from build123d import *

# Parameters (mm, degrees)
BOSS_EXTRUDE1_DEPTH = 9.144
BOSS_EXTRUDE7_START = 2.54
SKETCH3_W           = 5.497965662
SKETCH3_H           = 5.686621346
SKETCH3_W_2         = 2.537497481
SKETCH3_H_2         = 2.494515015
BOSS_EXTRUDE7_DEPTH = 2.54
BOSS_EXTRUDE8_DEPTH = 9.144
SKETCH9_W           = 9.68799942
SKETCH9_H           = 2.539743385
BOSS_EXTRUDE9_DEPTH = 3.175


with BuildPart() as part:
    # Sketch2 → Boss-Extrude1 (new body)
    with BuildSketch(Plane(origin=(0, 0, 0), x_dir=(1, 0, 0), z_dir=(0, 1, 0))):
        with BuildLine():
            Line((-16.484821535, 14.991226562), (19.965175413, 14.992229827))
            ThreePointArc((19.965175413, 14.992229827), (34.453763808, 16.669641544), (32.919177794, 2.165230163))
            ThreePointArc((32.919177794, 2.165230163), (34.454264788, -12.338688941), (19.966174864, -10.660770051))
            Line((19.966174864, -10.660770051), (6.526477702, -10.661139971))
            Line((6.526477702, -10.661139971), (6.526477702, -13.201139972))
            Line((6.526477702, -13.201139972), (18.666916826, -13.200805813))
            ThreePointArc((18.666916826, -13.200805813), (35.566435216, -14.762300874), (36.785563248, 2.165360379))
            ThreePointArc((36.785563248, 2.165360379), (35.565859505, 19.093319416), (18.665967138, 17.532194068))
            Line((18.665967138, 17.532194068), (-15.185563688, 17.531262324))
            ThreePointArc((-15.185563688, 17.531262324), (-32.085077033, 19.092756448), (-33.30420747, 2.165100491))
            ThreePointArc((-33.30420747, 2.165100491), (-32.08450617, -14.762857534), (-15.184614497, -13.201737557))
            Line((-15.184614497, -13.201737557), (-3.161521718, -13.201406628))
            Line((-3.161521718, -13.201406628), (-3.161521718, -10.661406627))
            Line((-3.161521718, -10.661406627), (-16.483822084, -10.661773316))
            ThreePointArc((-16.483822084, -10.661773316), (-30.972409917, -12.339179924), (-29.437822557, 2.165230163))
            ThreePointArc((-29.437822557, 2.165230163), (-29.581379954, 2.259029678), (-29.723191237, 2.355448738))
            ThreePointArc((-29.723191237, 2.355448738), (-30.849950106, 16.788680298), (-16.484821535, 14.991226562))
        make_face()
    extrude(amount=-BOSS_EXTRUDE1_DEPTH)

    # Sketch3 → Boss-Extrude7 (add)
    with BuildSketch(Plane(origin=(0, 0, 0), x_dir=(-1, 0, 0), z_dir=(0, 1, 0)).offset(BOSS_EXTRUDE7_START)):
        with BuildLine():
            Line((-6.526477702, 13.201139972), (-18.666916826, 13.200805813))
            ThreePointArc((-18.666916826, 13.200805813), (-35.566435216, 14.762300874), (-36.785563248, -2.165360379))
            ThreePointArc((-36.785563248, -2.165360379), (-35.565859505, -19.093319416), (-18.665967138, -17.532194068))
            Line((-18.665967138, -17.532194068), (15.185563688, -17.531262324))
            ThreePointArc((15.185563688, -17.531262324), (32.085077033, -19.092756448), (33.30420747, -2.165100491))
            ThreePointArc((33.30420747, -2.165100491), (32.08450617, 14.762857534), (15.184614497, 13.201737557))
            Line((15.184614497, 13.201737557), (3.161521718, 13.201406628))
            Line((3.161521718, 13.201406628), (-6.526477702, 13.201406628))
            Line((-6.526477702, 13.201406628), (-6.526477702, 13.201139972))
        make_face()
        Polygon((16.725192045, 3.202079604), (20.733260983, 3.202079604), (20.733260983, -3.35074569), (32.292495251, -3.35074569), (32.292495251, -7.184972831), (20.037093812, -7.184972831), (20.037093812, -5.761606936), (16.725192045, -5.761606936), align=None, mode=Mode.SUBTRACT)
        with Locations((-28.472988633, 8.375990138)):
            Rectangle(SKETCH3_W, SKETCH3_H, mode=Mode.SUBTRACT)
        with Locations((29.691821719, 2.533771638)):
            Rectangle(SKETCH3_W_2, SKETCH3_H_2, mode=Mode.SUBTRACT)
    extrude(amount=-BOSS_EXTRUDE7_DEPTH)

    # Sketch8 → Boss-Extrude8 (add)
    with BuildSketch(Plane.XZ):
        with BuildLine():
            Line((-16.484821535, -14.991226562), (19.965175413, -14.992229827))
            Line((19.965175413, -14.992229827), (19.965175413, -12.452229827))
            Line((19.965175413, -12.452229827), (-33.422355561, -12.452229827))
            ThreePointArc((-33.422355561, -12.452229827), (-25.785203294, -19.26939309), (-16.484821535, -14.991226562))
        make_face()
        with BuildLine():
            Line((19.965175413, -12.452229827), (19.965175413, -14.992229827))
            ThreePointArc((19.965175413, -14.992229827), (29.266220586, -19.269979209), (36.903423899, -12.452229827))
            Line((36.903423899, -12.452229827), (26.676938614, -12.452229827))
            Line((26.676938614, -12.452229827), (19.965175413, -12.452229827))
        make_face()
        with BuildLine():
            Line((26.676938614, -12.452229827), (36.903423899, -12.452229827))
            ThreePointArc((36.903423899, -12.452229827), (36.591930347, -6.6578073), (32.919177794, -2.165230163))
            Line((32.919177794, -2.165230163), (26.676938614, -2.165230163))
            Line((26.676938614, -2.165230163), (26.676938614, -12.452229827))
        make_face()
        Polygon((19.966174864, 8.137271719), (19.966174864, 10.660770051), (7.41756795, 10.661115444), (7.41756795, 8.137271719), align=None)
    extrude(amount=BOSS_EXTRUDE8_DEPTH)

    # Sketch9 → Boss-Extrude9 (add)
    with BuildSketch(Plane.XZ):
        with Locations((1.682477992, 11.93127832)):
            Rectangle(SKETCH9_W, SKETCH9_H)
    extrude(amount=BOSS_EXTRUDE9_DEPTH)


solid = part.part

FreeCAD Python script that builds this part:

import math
import FreeCAD as App
import Part
import Sketcher
from FreeCAD import Vector
Q = App.Units.Quantity


def add_polygon(sketch, points):
    """Adds a closed chain of lines whose ends are joined by coincident constraints."""
    first, n = sketch.GeometryCount, len(points)
    for a, b in zip(points, points[1:] + points[:1]):
        sketch.addGeometry(Part.LineSegment(App.Vector(*a, 0), App.Vector(*b, 0)), False)
    for i in range(n):
        sketch.addConstraint(Sketcher.Constraint("Coincident", first + i, 2, first + (i + 1) % n, 1))

doc = App.newDocument("Part")
body = doc.addObject("PartDesign::Body", "Body")

sketch1 = doc.addObject("Sketcher::SketchObject", "Sketch")
body.addObject(sketch1)
sketch1.AttachmentSupport = (doc.XZ_Plane, [""])
sketch1.MapMode = "FlatFace"
sketch1.addGeometry(Part.LineSegment(Vector(-16.48, -14.99, 0), Vector(19.97, -14.99, 0)), False)
sketch1.addGeometry(Part.ArcOfCircle(Part.Circle(Vector(27.88, -10.03, 0), Vector(0, 0, 1), 9.34), math.radians(-148), math.radians(57)), False)
sketch1.addGeometry(Part.ArcOfCircle(Part.Circle(Vector(27.88, 5.7, 0), Vector(0, 0, 1), 9.34), math.radians(-57), math.radians(148)), False)
sketch1.addGeometry(Part.LineSegment(Vector(19.97, 10.66, 0), Vector(6.53, 10.66, 0)), False)
sketch1.addGeometry(Part.LineSegment(Vector(6.53, 10.66, 0), Vector(6.53, 13.2, 0)), False)
sketch1.addGeometry(Part.LineSegment(Vector(6.53, 13.2, 0), Vector(18.67, 13.2, 0)), False)
sketch1.addGeometry(Part.ArcOfCircle(Part.Circle(Vector(27.88, 5.7, 0), Vector(0, 0, 1), 11.88), math.radians(-41), math.radians(141)), False)
sketch1.addGeometry(Part.ArcOfCircle(Part.Circle(Vector(27.88, -10.03, 0), Vector(0, 0, 1), 11.88), math.radians(-141), math.radians(41)), False)
sketch1.addGeometry(Part.LineSegment(Vector(18.67, -17.53, 0), Vector(-15.19, -17.53, 0)), False)
sketch1.addGeometry(Part.ArcOfCircle(Part.Circle(Vector(-24.4, -10.03, 0), Vector(0, 0, 1), 11.88), math.radians(139), math.radians(321)), False)
sketch1.addGeometry(Part.ArcOfCircle(Part.Circle(Vector(-24.4, 5.7, 0), Vector(0, 0, 1), 11.88), math.radians(39), math.radians(221)), False)
sketch1.addGeometry(Part.LineSegment(Vector(-15.18, 13.2, 0), Vector(-3.16, 13.2, 0)), False)
sketch1.addGeometry(Part.LineSegment(Vector(-3.16, 13.2, 0), Vector(-3.16, 10.66, 0)), False)
sketch1.addGeometry(Part.LineSegment(Vector(-3.16, 10.66, 0), Vector(-16.48, 10.66, 0)), False)
sketch1.addGeometry(Part.ArcOfCircle(Part.Circle(Vector(-24.4, 5.7, 0), Vector(0, 0, 1), 9.34), math.radians(32), math.radians(237)), False)
sketch1.addGeometry(Part.ArcOfCircle(Part.Circle(Vector(-24.4, -10.03, 0), Vector(0, 0, 1), 9.34), math.radians(122.63), math.radians(124.74)), False)
sketch1.addGeometry(Part.ArcOfCircle(Part.Circle(Vector(-24.4, -10.03, 0), Vector(0, 0, 1), 9.34), math.radians(125), math.radians(328)), False)
sketch1.addConstraint(Sketcher.Constraint("Coincident", 0, 2, 1, 1))
sketch1.addConstraint(Sketcher.Constraint("Coincident", 1, 2, 2, 1))
sketch1.addConstraint(Sketcher.Constraint("Coincident", 2, 2, 3, 1))
sketch1.addConstraint(Sketcher.Constraint("Coincident", 3, 2, 4, 1))
sketch1.addConstraint(Sketcher.Constraint("Coincident", 4, 2, 5, 1))
sketch1.addConstraint(Sketcher.Constraint("Coincident", 5, 2, 6, 2))
sketch1.addConstraint(Sketcher.Constraint("Coincident", 6, 1, 7, 2))
sketch1.addConstraint(Sketcher.Constraint("Coincident", 7, 1, 8, 1))
sketch1.addConstraint(Sketcher.Constraint("Coincident", 8, 2, 9, 2))
sketch1.addConstraint(Sketcher.Constraint("Coincident", 9, 1, 10, 2))
sketch1.addConstraint(Sketcher.Constraint("Coincident", 10, 1, 11, 1))
sketch1.addConstraint(Sketcher.Constraint("Coincident", 11, 2, 12, 1))
sketch1.addConstraint(Sketcher.Constraint("Coincident", 12, 2, 13, 1))
sketch1.addConstraint(Sketcher.Constraint("Coincident", 13, 2, 14, 1))
sketch1.addConstraint(Sketcher.Constraint("Coincident", 14, 2, 15, 1))
sketch1.addConstraint(Sketcher.Constraint("Tangent", 15, 2, 16, 1))
sketch1.addConstraint(Sketcher.Constraint("Coincident", 16, 2, 0, 1))
sketch1.addConstraint(Sketcher.Constraint("Vertical", 4))
sketch1.addConstraint(Sketcher.Constraint("Vertical", 12))
sketch1.addConstraint(Sketcher.Constraint("Coincident", 6, 3, 2, 3))
sketch1.addConstraint(Sketcher.Constraint("Coincident", 7, 3, 1, 3))
sketch1.addConstraint(Sketcher.Constraint("Coincident", 14, 3, 10, 3))
sketch1.addConstraint(Sketcher.Constraint("Coincident", 15, 3, 9, 3))
sketch1.addConstraint(Sketcher.Constraint("Equal", 7, 10))
sketch1.addConstraint(Sketcher.Constraint("Equal", 1, 14))
sketch1.addConstraint(Sketcher.Constraint("Parallel", 0, 3))
sketch1.addConstraint(Sketcher.Constraint("Parallel", 3, 5))
sketch1.addConstraint(Sketcher.Constraint("Parallel", 5, 8))
sketch1.addConstraint(Sketcher.Constraint("Parallel", 8, 11))
sketch1.addConstraint(Sketcher.Constraint("Parallel", 11, 13))
sketch1.addConstraint(Sketcher.Constraint("Horizontal", 1, 2, 14, 2))
sketch1.addConstraint(Sketcher.Constraint("Equal", 4, 12))
sketch1.addConstraint(Sketcher.Constraint("DistanceY", 4, 1, 4, 2, Q("0.1 in")))
sketch1.addConstraint(Sketcher.Constraint("DistanceX", 0, 2, 1, 2, Q("0.5100001 in")))
sketch1.addConstraint(Sketcher.Constraint("Radius", 9, 11.88103))
sketch1.addConstraint(Sketcher.Constraint("Radius", 16, 9.34103))
sketch1.addConstraint(Sketcher.Constraint("DistanceY", 0, 2, 1, 2, Q("0.505 in")))
sketch1.addConstraint(Sketcher.Constraint("Distance", 13, Q("0.5245 in")))
sketch1.addConstraint(Sketcher.Constraint("Radius", 1, 9.341597))
sketch1.addConstraint(Sketcher.Constraint("Radius", 2, 9.341032))
sketch1.addConstraint(Sketcher.Constraint("Radius", 6, 11.881032))
sketch1.addConstraint(Sketcher.Constraint("Radius", 7, 11.881597))
sketch1.addConstraint(Sketcher.Constraint("Radius", 15, 9.341027))
sketch1.addConstraint(Sketcher.Constraint("DistanceY", 9, 1, -1, 1, 2.1651))
sketch1.addConstraint(Sketcher.Constraint("DistanceX", 1, 3, 2, 3, 0.000901))
sketch1.addConstraint(Sketcher.Constraint("DistanceX", 9, 3, 1, 3, 52.281299))
sketch1.addConstraint(Sketcher.Constraint("DistanceY", 9, 3, 6, 3, 15.7327))
sketch1.addConstraint(Sketcher.Constraint("DistanceX", 9, 3, 10, 3, 0.0009))
sketch1.addConstraint(Sketcher.Constraint("DistanceY", 1, 2, 2, 2, 12.826))
sketch1.addConstraint(Sketcher.Constraint("DistanceX", 3, 2, 2, 3, 21.3553))
sketch1.addConstraint(Sketcher.Constraint("DistanceX", 11, 2, 4, 2, 9.687999))
sketch1.addConstraint(Sketcher.Constraint("DistanceY", 5, 2, 11, 2, 0.000601))
sketch1.addConstraint(Sketcher.Constraint("Distance", 8, 33.851531))
sketch1.addConstraint(Sketcher.Constraint("DistanceX", 9, 3, -1, 1, 24.400422))
sketch1.addConstraint(Sketcher.Constraint("DistanceX", 15, 2, -1, 1, 29.723191))
pad1 = doc.addObject("PartDesign::Pad", "Pad")
body.addObject(pad1)
pad1.Profile = sketch1
pad1.Length = Q("0.36 in")

sketch2 = doc.addObject("Sketcher::SketchObject", "Sketch001")
body.addObject(sketch2)
sketch2.AttachmentSupport = (doc.XZ_Plane, [""])
sketch2.MapMode = "FlatFace"
sketch2.AttachmentOffset = App.Placement(Vector(0, 0, -0.1 * 25.4), App.Rotation())
sketch2.addGeometry(Part.LineSegment(Vector(6.52648, 13.20114, 0), Vector(18.66692, 13.20081, 0)), False)
sketch2.addGeometry(Part.ArcOfCircle(Part.Circle(Vector(27.88178, 5.70112, 0), Vector(0, 0, 1), 11.88103), math.radians(-41), math.radians(141)), False)
sketch2.addGeometry(Part.ArcOfCircle(Part.Circle(Vector(27.88088, -10.03168, 0), Vector(0, 0, 1), 11.8816), math.radians(-141), math.radians(41)), False)
sketch2.addGeometry(Part.LineSegment(Vector(18.66597, -17.53219, 0), Vector(-15.18556, -17.53126, 0)), False)
sketch2.addGeometry(Part.ArcOfCircle(Part.Circle(Vector(-24.40042, -10.03158, 0), Vector(0, 0, 1), 11.88103), math.radians(139), math.radians(321)), False)
sketch2.addGeometry(Part.ArcOfCircle(Part.Circle(Vector(-24.39952, 5.70122, 0), Vector(0, 0, 1), 11.8816), math.radians(39), math.radians(221)), False)
sketch2.addGeometry(Part.LineSegment(Vector(-15.18461, 13.20174, 0), Vector(-3.16152, 13.20141, 0)), False)
sketch2.addGeometry(Part.LineSegment(Vector(-3.16152, 13.20141, 0), Vector(6.52648, 13.20141, 0)), False)
sketch2.addGeometry(Part.LineSegment(Vector(6.52648, 13.20141, 0), Vector(6.52648, 13.20114, 0)), False)
add_polygon(sketch2, [(-16.72519, -5.76161), (-16.72519, 3.20208), (-20.73326, 3.20208), (-20.73326, -3.35075), (-32.2925, -3.35075), (-32.2925, -7.18497), (-20.03709, -7.18497), (-20.03709, -5.76161)])
add_polygon(sketch2, [(25.72401, 5.53268), (31.22197, 5.53268), (31.22197, 11.2193), (25.72401, 11.2193)])
add_polygon(sketch2, [(-30.96057, 1.28651), (-28.42307, 1.28651), (-28.42307, 3.78103), (-30.96057, 3.78103)])
sketch2.addConstraint(Sketcher.Constraint("Coincident", 0, 2, 1, 2))
sketch2.addConstraint(Sketcher.Constraint("Coincident", 1, 1, 2, 2))
sketch2.addConstraint(Sketcher.Constraint("Coincident", 2, 1, 3, 1))
sketch2.addConstraint(Sketcher.Constraint("Coincident", 3, 2, 4, 2))
sketch2.addConstraint(Sketcher.Constraint("Coincident", 4, 1, 5, 2))
sketch2.addConstraint(Sketcher.Constraint("Coincident", 5, 1, 6, 1))
sketch2.addConstraint(Sketcher.Constraint("Coincident", 6, 2, 7, 1))
sketch2.addConstraint(Sketcher.Constraint("Coincident", 7, 2, 8, 1))
sketch2.addConstraint(Sketcher.Constraint("Coincident", 8, 2, 0, 1))
sketch2.addConstraint(Sketcher.Constraint("Horizontal", 7))
sketch2.addConstraint(Sketcher.Constraint("Vertical", 8))
sketch2.addConstraint(Sketcher.Constraint("Vertical", 9))
sketch2.addConstraint(Sketcher.Constraint("Horizontal", 10))
sketch2.addConstraint(Sketcher.Constraint("Vertical", 11))
sketch2.addConstraint(Sketcher.Constraint("Horizontal", 12))
sketch2.addConstraint(Sketcher.Constraint("Vertical", 13))
sketch2.addConstraint(Sketcher.Constraint("Horizontal", 14))
sketch2.addConstraint(Sketcher.Constraint("Vertical", 15))
sketch2.addConstraint(Sketcher.Constraint("Horizontal", 16))
sketch2.addConstraint(Sketcher.Constraint("Horizontal", 17))
sketch2.addConstraint(Sketcher.Constraint("Vertical", 18))
sketch2.addConstraint(Sketcher.Constraint("Horizontal", 19))
sketch2.addConstraint(Sketcher.Constraint("Vertical", 20))
sketch2.addConstraint(Sketcher.Constraint("Horizontal", 21))
sketch2.addConstraint(Sketcher.Constraint("Vertical", 22))
sketch2.addConstraint(Sketcher.Constraint("Horizontal", 23))
sketch2.addConstraint(Sketcher.Constraint("Vertical", 24))
sketch2.addConstraint(Sketcher.Constraint("Equal", 2, 5))
sketch2.addConstraint(Sketcher.Constraint("Parallel", 0, 3))
sketch2.addConstraint(Sketcher.Constraint("Parallel", 3, 6))
sketch2.addConstraint(Sketcher.Constraint("Radius", 4, 11.88103))
sketch2.addConstraint(Sketcher.Constraint("DistanceX", 7, 1, 7, 2, 9.687999))
sketch2.addConstraint(Sketcher.Constraint("DistanceX", 14, 1, 14, 2, 12.255401))
sketch2.addConstraint(Sketcher.Constraint("DistanceX", 16, 1, 16, 2, 3.311902))
sketch2.addConstraint(Sketcher.Constraint("Radius", 1, 11.881032))
sketch2.addConstraint(Sketcher.Constraint("Radius", 2, 11.881597))
sketch2.addConstraint(Sketcher.Constraint("DistanceY", 2, 1, 4, 3, Q("0.2952998 in")))
sketch2.addConstraint(Sketcher.Constraint("DistanceX", 10, 2, 10, 1, 4.008069))
sketch2.addConstraint(Sketcher.Constraint("DistanceY", 18, 1, 18, 2, 5.686621))
sketch2.addConstraint(Sketcher.Constraint("DistanceY", 4, 1, -1, 1, 2.1651))
sketch2.addConstraint(Sketcher.Constraint("DistanceY", -1, 1, 18, 2, 11.219301))
sketch2.addConstraint(Sketcher.Constraint("DistanceX", 2, 3, 1, 3, 0.000901))
sketch2.addConstraint(Sketcher.Constraint("DistanceX", 4, 3, 2, 3, 52.281299))
sketch2.addConstraint(Sketcher.Constraint("DistanceY", 4, 3, 1, 3, 15.7327))
sketch2.addConstraint(Sketcher.Constraint("DistanceX", 4, 3, 5, 3, 0.0009))
sketch2.addConstraint(Sketcher.Constraint("DistanceY", 2, 1, 0, 2, 30.733))
sketch2.addConstraint(Sketcher.Constraint("DistanceY", 3, 2, 5, 1, 30.733))
sketch2.addConstraint(Sketcher.Constraint("DistanceY", 0, 2, 6, 2, 0.000601))
sketch2.addConstraint(Sketcher.Constraint("DistanceX", 5, 3, 6, 2, 21.238))
sketch2.addConstraint(Sketcher.Constraint("DistanceY", 21, 2, 5, 3, 4.414701))
sketch2.addConstraint(Sketcher.Constraint("Distance", 3, 33.851531))
sketch2.addConstraint(Sketcher.Constraint("DistanceX", 17, 1, 17, 2, 5.497966))
sketch2.addConstraint(Sketcher.Constraint("DistanceX", 21, 1, 21, 2, 2.537497))
sketch2.addConstraint(Sketcher.Constraint("DistanceY", 9, 1, 9, 2, 8.963687))
sketch2.addConstraint(Sketcher.Constraint("DistanceY", 11, 2, 11, 1, 6.552825))
sketch2.addConstraint(Sketcher.Constraint("DistanceY", 13, 2, 13, 1, 3.834227))
sketch2.addConstraint(Sketcher.Constraint("DistanceY", 22, 1, 22, 2, 2.494515))
sketch2.addConstraint(Sketcher.Constraint("DistanceY", -1, 1, 1, 3, 5.701121))
sketch2.addConstraint(Sketcher.Constraint("DistanceX", 4, 3, -1, 1, 24.400422))
sketch2.addConstraint(Sketcher.Constraint("DistanceY", -1, 1, 9, 2, 3.20208))
sketch2.addConstraint(Sketcher.Constraint("DistanceX", 10, 2, -1, 1, 20.733261))
sketch2.addConstraint(Sketcher.Constraint("DistanceX", -1, 1, 17, 2, 31.221971))
sketch2.addConstraint(Sketcher.Constraint("DistanceX", 23, 2, -1, 1, 30.96057))
pad2 = doc.addObject("PartDesign::Pad", "Pad001")
body.addObject(pad2)
pad2.Profile = sketch2
pad2.Length = Q("0.1 in")

sketch3 = doc.addObject("Sketcher::SketchObject", "Sketch002")
body.addObject(sketch3)
sketch3.AttachmentSupport = (doc.XZ_Plane, [""])
sketch3.MapMode = "FlatFace"
sketch3.addGeometry(Part.LineSegment(Vector(-16.5, -15, 0), Vector(20, -15, 0)), False)
sketch3.addGeometry(Part.ArcOfCircle(Part.Circle(Vector(27.9, -10, 0), Vector(0, 0, 1), 9.3), math.radians(-148), math.radians(-15)), False)
sketch3.addGeometry(Part.ArcOfCircle(Part.Circle(Vector(27.9, -10, 0), Vector(0, 0, 1), 9.3), math.radians(-15), math.radians(57)), False)
sketch3.addGeometry(Part.LineSegment(Vector(32.9, -2.2, 0), Vector(26.7, -2.2, 0)), False)
sketch3.addGeometry(Part.LineSegment(Vector(26.7, -2.2, 0), Vector(26.7, -12.5, 0)), False)
sketch3.addGeometry(Part.LineSegment(Vector(26.7, -12.5, 0), Vector(-33.4, -12.5, 0)), False)
sketch3.addGeometry(Part.ArcOfCircle(Part.Circle(Vector(-24.4, -10, 0), Vector(0, 0, 1), 9.3), math.radians(-165), math.radians(-32)), False)
add_polygon(sketch3, [(20, 8.1), (20, 10.7), (7.4, 10.7), (7.4, 8.1)])
sketch3.addConstraint(Sketcher.Constraint("Coincident", 0, 2, 1, 1))
sketch3.addConstraint(Sketcher.Constraint("Tangent", 1, 2, 2, 1))
sketch3.addConstraint(Sketcher.Constraint("Coincident", 2, 2, 3, 1))
sketch3.addConstraint(Sketcher.Constraint("Coincident", 3, 2, 4, 1))
sketch3.addConstraint(Sketcher.Constraint("Coincident", 4, 2, 5, 1))
sketch3.addConstraint(Sketcher.Constraint("Coincident", 5, 2, 6, 1))
sketch3.addConstraint(Sketcher.Constraint("Coincident", 6, 2, 0, 1))
sketch3.addConstraint(Sketcher.Constraint("Horizontal", 3))
sketch3.addConstraint(Sketcher.Constraint("Vertical", 4))
sketch3.addConstraint(Sketcher.Constraint("Horizontal", 5))
sketch3.addConstraint(Sketcher.Constraint("Vertical", 7))
sketch3.addConstraint(Sketcher.Constraint("Vertical", 9))
sketch3.addConstraint(Sketcher.Constraint("Horizontal", 10))
sketch3.addConstraint(Sketcher.Constraint("Equal", 1, 2))
sketch3.addConstraint(Sketcher.Constraint("Parallel", 0, 8))
sketch3.addConstraint(Sketcher.Constraint("Horizontal", 1, 2, 4, 2))
sketch3.addConstraint(Sketcher.Constraint("DistanceY", 0, 2, 1, 2, Q("0.1 in")))
sketch3.addConstraint(Sketcher.Constraint("DistanceY", 4, 2, 4, 1, Q("0.405 in")))
sketch3.addConstraint(Sketcher.Constraint("DistanceX", 0, 2, 2, 2, Q("0.5100001 in")))
sketch3.addConstraint(Sketcher.Constraint("Radius", 6, 9.34103))
sketch3.addConstraint(Sketcher.Constraint("DistanceY", 7, 1, 7, 2, 2.523498))
sketch3.addConstraint(Sketcher.Constraint("Radius", 1, 9.341597))
sketch3.addConstraint(Sketcher.Constraint("DistanceX", 3, 2, 3, 1, 6.242239))
sketch3.addConstraint(Sketcher.Constraint("DistanceX", 6, 3, 1, 3, 52.281299))
sketch3.addConstraint(Sketcher.Constraint("DistanceX", 6, 3, 6, 2, 7.9156))
sketch3.addConstraint(Sketcher.Constraint("DistanceY", 3, 2, 7, 2, 12.826))
sketch3.addConstraint(Sketcher.Constraint("DistanceX", 5, 2, 5, 1, 60.099294))
sketch3.addConstraint(Sketcher.Constraint("DistanceX", 10, 1, 10, 2, 12.548607))
sketch3.addConstraint(Sketcher.Constraint("DistanceX", 6, 3, -1, 1, 24.400422))
sketch3.addConstraint(Sketcher.Constraint("DistanceY", 6, 3, -1, 1, 10.031578))
sketch3.addConstraint(Sketcher.Constraint("DistanceX", 8, 2, 3, 2, 19.259371))
pad3 = doc.addObject("PartDesign::Pad", "Pad002")
body.addObject(pad3)
pad3.Profile = sketch3
pad3.Length = Q("0.36 in")

sketch4 = doc.addObject("Sketcher::SketchObject", "Sketch003")
body.addObject(sketch4)
sketch4.AttachmentSupport = (doc.XZ_Plane, [""])
sketch4.MapMode = "FlatFace"
add_polygon(sketch4, [(-3.2, 13.2), (-3.2, 10.7), (6.5, 10.7), (6.5, 13.2)])
sketch4.addConstraint(Sketcher.Constraint("Vertical", 0))
sketch4.addConstraint(Sketcher.Constraint("Horizontal", 1))
sketch4.addConstraint(Sketcher.Constraint("Vertical", 2))
sketch4.addConstraint(Sketcher.Constraint("Horizontal", 3))
sketch4.addConstraint(Sketcher.Constraint("DistanceX", 1, 1, 1, 2, 9.687999))
sketch4.addConstraint(Sketcher.Constraint("DistanceY", 0, 2, 0, 1, 2.539743))
sketch4.addConstraint(Sketcher.Constraint("DistanceX", 0, 2, -1, 1, 3.161522))
sketch4.addConstraint(Sketcher.Constraint("DistanceY", -1, 1, 2, 2, 13.20115))
pad4 = doc.addObject("PartDesign::Pad", "Pad003")
body.addObject(pad4)
pad4.Profile = sketch4
pad4.Length = Q("0.125 in")

doc.recompute()
